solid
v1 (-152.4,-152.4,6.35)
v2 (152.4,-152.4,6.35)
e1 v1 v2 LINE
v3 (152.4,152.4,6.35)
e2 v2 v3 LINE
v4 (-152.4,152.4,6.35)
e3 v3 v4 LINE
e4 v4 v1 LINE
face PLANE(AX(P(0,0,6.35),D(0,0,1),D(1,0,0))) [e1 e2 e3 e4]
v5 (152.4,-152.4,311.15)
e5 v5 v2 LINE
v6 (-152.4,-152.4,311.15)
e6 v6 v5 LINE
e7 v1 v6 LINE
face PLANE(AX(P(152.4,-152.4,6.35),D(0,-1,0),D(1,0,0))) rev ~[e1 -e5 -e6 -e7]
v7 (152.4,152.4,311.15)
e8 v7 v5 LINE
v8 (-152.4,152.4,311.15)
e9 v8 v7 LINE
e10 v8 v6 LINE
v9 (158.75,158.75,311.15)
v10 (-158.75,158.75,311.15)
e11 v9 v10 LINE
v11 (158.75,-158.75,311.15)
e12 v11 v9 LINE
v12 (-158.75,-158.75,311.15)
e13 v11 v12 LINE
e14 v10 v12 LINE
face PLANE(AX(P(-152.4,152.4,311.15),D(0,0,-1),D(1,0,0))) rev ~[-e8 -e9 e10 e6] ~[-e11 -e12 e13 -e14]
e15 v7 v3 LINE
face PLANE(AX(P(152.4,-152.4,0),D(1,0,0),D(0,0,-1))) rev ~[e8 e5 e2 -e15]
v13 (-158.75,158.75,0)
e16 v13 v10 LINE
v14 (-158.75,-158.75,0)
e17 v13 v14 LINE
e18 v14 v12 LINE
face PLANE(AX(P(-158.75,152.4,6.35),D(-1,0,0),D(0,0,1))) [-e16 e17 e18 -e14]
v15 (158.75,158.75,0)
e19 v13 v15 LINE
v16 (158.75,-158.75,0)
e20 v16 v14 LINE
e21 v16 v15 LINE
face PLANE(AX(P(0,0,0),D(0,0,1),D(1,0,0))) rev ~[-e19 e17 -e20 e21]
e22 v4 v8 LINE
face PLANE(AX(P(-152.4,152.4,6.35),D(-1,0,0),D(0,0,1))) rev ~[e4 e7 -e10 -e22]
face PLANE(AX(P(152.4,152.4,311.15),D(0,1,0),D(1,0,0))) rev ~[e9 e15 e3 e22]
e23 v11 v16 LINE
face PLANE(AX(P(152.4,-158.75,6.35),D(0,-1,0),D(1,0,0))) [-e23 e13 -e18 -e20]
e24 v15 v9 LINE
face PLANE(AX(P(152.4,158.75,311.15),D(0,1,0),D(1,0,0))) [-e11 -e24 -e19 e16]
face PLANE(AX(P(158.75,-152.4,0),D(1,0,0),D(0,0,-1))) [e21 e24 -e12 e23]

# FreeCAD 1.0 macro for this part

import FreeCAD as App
import Part
import Sketcher

V = App.Vector
Q = App.Units.Quantity

doc = App.newDocument("Part")
body = doc.addObject("PartDesign::Body", "Body")

sketch1 = doc.addObject("Sketcher::SketchObject", "Sketch")
body.addObject(sketch1)
sketch1.AttachmentSupport = (doc.XY_Plane, [""])
sketch1.MapMode = "FlatFace"
sketch1.addGeometry([
    Part.LineSegment(V(-152, 152, 0), V(-152, -152, 0)),
    Part.LineSegment(V(-152, -152, 0), V(152, -152, 0)),
    Part.LineSegment(V(152, -152, 0), V(152, 152, 0)),
    Part.LineSegment(V(152, 152, 0), V(-152, 152, 0)),
], False)
sketch1.addConstraint([
    Sketcher.Constraint("Coincident", 0, 2, 1, 1),
    Sketcher.Constraint("Coincident", 1, 2, 2, 1),
    Sketcher.Constraint("Coincident", 2, 2, 3, 1),
    Sketcher.Constraint("Coincident", 3, 2, 0, 1),
    Sketcher.Constraint("Vertical", 0),
    Sketcher.Constraint("Horizontal", 1),
    Sketcher.Constraint("Vertical", 2),
    Sketcher.Constraint("Horizontal", 3),
    Sketcher.Constraint("Symmetric", 0, 2, 2, 2, -1, 1),
    Sketcher.Constraint("Equal", 3, 0),
    Sketcher.Constraint("DistanceX", 1, 1, 1, 2, Q("12 in")),
])
pad1 = doc.addObject("PartDesign::Pad", "Pad")
body.addObject(pad1)
pad1.Profile = sketch1
pad1.Length = Q("0.25 in")

sketch2 = doc.addObject("Sketcher::SketchObject", "Sketch001")
body.addObject(sketch2)
sketch2.AttachmentSupport = (doc.YZ_Plane, [""])
sketch2.MapMode = "FlatFace"
sketch2.AttachmentOffset = App.Placement(V(0, 0, 6 * 25.4), App.Rotation())
sketch2.addGeometry([
    Part.LineSegment(V(-152, 311, 0), V(-152, 0, 0)),
    Part.LineSegment(V(-152, 0, 0), V(152, 0, 0)),
    Part.LineSegment(V(152, 0, 0), V(152, 311, 0)),
    Part.LineSegment(V(152, 311, 0), V(-152, 311, 0)),
], False)
sketch2.addConstraint([
    Sketcher.Constraint("Coincident", 0, 2, 1, 1),
    Sketcher.Constraint("Coincident", 1, 2, 2, 1),
    Sketcher.Constraint("Coincident", 2, 2, 3, 1),
    Sketcher.Constraint("Coincident", 3, 2, 0, 1),
    Sketcher.Constraint("Vertical", 0),
    Sketcher.Constraint("Horizontal", 1),
    Sketcher.Constraint("Vertical", 2),
    Sketcher.Constraint("Horizontal", 3),
    Sketcher.Constraint("Symmetric", 0, 2, 1, 2, -1, 1),
    Sketcher.Constraint("DistanceX", 1, 1, 1, 2, Q("12 in")),
    Sketcher.Constraint("DistanceY", 0, 2, 0, 1, Q("12.25 in")),
])
pad2 = doc.addObject("PartDesign::Pad", "Pad001")
body.addObject(pad2)
pad2.Profile = sketch2
pad2.Length = Q("0.25 in")

sketch3 = doc.addObject("Sketcher::SketchObject", "Sketch002")
body.addObject(sketch3)
sketch3.AttachmentSupport = (doc.XZ_Plane, [""])
sketch3.MapMode = "FlatFace"
sketch3.AttachmentOffset = App.Placement(V(0, 0, -6 * 25.4), App.Rotation())
sketch3.addGeometry([
    Part.LineSegment(V(-152, 311, 0), V(159, 311, 0)),
    Part.LineSegment(V(159, 311, 0), V(159, 0, 0)),
    Part.LineSegment(V(159, 0, 0), V(-152, 0, 0)),
    Part.LineSegment(V(-152, 0, 0), V(-152, 311, 0)),
], False)
sketch3.addConstraint([
    Sketcher.Constraint("Coincident", 0, 2, 1, 1),
    Sketcher.Constraint("Coincident", 1, 2, 2, 1),
    Sketcher.Constraint("Coincident", 2, 2, 3, 1),
    Sketcher.Constraint("Coincident", 3, 2, 0, 1),
    Sketcher.Constraint("Horizontal", 0),
    Sketcher.Constraint("Vertical", 1),
    Sketcher.Constraint("Horizontal", 2),
    Sketcher.Constraint("Vertical", 3),
    Sketcher.Constraint("PointOnObject", 1, 2, -1),
    Sketcher.Constraint("Equal", 2, 1),
    Sketcher.Constraint("DistanceX", 2, 2, -1, 1, Q("6 in")),
    Sketcher.Constraint("DistanceX", 0, 1, 0, 2, Q("12.25 in")),
])
pad3 = doc.addObject("PartDesign::Pad", "Pad002")
body.addObject(pad3)
pad3.Profile = sketch3
pad3.Length = Q("0.25 in")
pad3.Reversed = True

sketch4 = doc.addObject("Sketcher::SketchObject", "Sketch003")
body.addObject(sketch4)
sketch4.AttachmentSupport = (doc.YZ_Plane, [""])
sketch4.MapMode = "FlatFace"
sketch4.AttachmentOffset = App.Placement(V(0, 0, -6 * 25.4), App.Rotation())
sketch4.addGeometry([
    Part.LineSegment(V(159, 0, 0), V(-152, 0, 0)),
    Part.LineSegment(V(-152, 0, 0), V(-152, 311, 0)),
    Part.LineSegment(V(-152, 311, 0), V(159, 311, 0)),
    Part.LineSegment(V(159, 311, 0), V(159, 0, 0)),
], False)
sketch4.addConstraint([
    Sketcher.Constraint("Coincident", 0, 2, 1, 1),
    Sketcher.Constraint("Coincident", 1, 2, 2, 1),
    Sketcher.Constraint("Coincident", 2, 2, 3, 1),
    Sketcher.Constraint("Coincident", 3, 2, 0, 1),
    Sketcher.Constraint("Horizontal", 0),
    Sketcher.Constraint("Vertical", 1),
    Sketcher.Constraint("Horizontal", 2),
    Sketcher.Constraint("Vertical", 3),
    Sketcher.Constraint("PointOnObject", 0, 2, -1),
    Sketcher.Constraint("Equal", 2, 1),
    Sketcher.Constraint("DistanceX", 0, 2, -1, 1, Q("6 in")),
    Sketcher.Constraint("DistanceX", 0, 2, 0, 1, Q("12.25 in")),
])
pad4 = doc.addObject("PartDesign::Pad", "Pad003")
body.addObject(pad4)
pad4.Profile = sketch4
pad4.Length = Q("0.25 in")
pad4.Reversed = True

sketch5 = doc.addObject("Sketcher::SketchObject", "Sketch004")
body.addObject(sketch5)
sketch5.AttachmentSupport = (doc.XZ_Plane, [""])
sketch5.MapMode = "FlatFace"
sketch5.AttachmentOffset = App.Placement(V(0, 0, 6 * 25.4), App.Rotation())
sketch5.addGeometry([
    Part.LineSegment(V(-159, 0, 0), V(159, 0, 0)),
    Part.LineSegment(V(159, 0, 0), V(159, 311, 0)),
    Part.LineSegment(V(159, 311, 0), V(-159, 311, 0)),
    Part.LineSegment(V(-159, 311, 0), V(-159, 0, 0)),
], False)
sketch5.addConstraint([
    Sketcher.Constraint("Coincident", 0, 2, 1, 1),
    Sketcher.Constraint("Coincident", 1, 2, 2, 1),
    Sketcher.Constraint("Coincident", 2, 2, 3, 1),
    Sketcher.Constraint("Coincident", 3, 2, 0, 1),
    Sketcher.Constraint("Horizontal", 0),
    Sketcher.Constraint("Vertical", 1),
    Sketcher.Constraint("Horizontal", 2),
    Sketcher.Constraint("Vertical", 3),
    Sketcher.Constraint("Symmetric", 0, 2, 3, 2, -1, 1),
    Sketcher.Constraint("DistanceX", 0, 1, 0, 2, Q("12.5 in")),
    Sketcher.Constraint("DistanceY", 1, 1, 1, 2, Q("12.25 in")),
])
pad5 = doc.addObject("PartDesign::Pad", "Pad004")
body.addObject(pad5)
pad5.Profile = sketch5
pad5.Length = Q("0.25 in")

doc.recompute()
